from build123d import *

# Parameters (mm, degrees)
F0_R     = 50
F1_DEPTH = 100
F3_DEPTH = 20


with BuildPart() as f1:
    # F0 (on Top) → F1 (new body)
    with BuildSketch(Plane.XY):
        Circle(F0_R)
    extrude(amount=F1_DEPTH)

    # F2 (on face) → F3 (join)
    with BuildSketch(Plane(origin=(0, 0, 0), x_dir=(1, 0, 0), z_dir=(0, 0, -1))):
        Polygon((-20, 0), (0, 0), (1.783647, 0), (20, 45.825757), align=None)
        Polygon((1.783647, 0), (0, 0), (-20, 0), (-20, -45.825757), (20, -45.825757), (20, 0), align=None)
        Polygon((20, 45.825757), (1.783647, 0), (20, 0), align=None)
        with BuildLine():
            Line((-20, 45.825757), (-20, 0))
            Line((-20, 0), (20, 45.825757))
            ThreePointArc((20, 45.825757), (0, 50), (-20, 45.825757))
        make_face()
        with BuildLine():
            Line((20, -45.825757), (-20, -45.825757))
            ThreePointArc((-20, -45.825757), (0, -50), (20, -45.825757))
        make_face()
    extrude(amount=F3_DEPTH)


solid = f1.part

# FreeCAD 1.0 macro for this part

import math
import FreeCAD as App
import Part
import Sketcher

doc = App.newDocument("Part")
body = doc.addObject("PartDesign::Body", "Body")

# Sketch on XY plane
sketch1 = body.newObject("Sketcher::SketchObject", "Sketch")
sketch1.AttachmentSupport = (doc.getObject("XY_Plane"), [""])
sketch1.MapMode = "FlatFace"
sketch1.addGeometry(Part.Circle(App.Vector(0, 0, 0), App.Vector(0, 0, 1), 50), False)
sketch1.addConstraint(Sketcher.Constraint("Coincident", 0, 3, -1, 1))
sketch1.addConstraint(Sketcher.Constraint("Diameter", 0, 100.0))
pad1 = body.newObject("PartDesign::Pad", "Pad")
pad1.Profile = sketch1
pad1.Length = 100

# Sketch on XY plane
sketch2 = body.newObject("Sketcher::SketchObject", "Sketch001")
sketch2.AttachmentSupport = (doc.getObject("XY_Plane"), [""])
sketch2.MapMode = "FlatFace"
sketch2.addGeometry(Part.LineSegment(App.Vector(20, 45.825757, 0), App.Vector(20, -45.825757, 0)), False)
sketch2.addGeometry(Part.ArcOfCircle(Part.Circle(App.Vector(0, 0.000001, 0), App.Vector(0, 0, 1), 50.000001), math.radians(-113.578178), math.radians(-66.421822)), False)
sketch2.addGeometry(Part.LineSegment(App.Vector(-20, -45.825757, 0), App.Vector(-20, 45.825757, 0)), False)
sketch2.addGeometry(Part.ArcOfCircle(Part.Circle(App.Vector(0, -0.000001, 0), App.Vector(0, 0, 1), 50.000001), math.radians(66.421822), math.radians(113.578178)), False)
sketch2.addConstraint(Sketcher.Constraint("Coincident", 0, 2, 1, 2))
sketch2.addConstraint(Sketcher.Constraint("Coincident", 1, 1, 2, 1))
sketch2.addConstraint(Sketcher.Constraint("Coincident", 2, 2, 3, 2))
sketch2.addConstraint(Sketcher.Constraint("Coincident", 3, 1, 0, 1))
sketch2.addConstraint(Sketcher.Constraint("Vertical", 0))
sketch2.addConstraint(Sketcher.Constraint("Vertical", 2))
sketch2.addConstraint(Sketcher.Constraint("Coincident", 1, 3, -1, 1))
sketch2.addConstraint(Sketcher.Constraint("Coincident", 3, 3, -1, 1))
sketch2.addConstraint(Sketcher.Constraint("Equal", 1, 3))
sketch2.addConstraint(Sketcher.Constraint("Horizontal", 0, 2, 1, 1))
sketch2.addConstraint(Sketcher.Constraint("Radius", 1, 50.000001))
sketch2.addConstraint(Sketcher.Constraint("DistanceX", -1, 1, 0, 2, 20.0))
pad2 = body.newObject("PartDesign::Pad", "Pad001")
pad2.Profile = sketch2
pad2.Length = 20
pad2.Reversed = True

doc.recompute()
